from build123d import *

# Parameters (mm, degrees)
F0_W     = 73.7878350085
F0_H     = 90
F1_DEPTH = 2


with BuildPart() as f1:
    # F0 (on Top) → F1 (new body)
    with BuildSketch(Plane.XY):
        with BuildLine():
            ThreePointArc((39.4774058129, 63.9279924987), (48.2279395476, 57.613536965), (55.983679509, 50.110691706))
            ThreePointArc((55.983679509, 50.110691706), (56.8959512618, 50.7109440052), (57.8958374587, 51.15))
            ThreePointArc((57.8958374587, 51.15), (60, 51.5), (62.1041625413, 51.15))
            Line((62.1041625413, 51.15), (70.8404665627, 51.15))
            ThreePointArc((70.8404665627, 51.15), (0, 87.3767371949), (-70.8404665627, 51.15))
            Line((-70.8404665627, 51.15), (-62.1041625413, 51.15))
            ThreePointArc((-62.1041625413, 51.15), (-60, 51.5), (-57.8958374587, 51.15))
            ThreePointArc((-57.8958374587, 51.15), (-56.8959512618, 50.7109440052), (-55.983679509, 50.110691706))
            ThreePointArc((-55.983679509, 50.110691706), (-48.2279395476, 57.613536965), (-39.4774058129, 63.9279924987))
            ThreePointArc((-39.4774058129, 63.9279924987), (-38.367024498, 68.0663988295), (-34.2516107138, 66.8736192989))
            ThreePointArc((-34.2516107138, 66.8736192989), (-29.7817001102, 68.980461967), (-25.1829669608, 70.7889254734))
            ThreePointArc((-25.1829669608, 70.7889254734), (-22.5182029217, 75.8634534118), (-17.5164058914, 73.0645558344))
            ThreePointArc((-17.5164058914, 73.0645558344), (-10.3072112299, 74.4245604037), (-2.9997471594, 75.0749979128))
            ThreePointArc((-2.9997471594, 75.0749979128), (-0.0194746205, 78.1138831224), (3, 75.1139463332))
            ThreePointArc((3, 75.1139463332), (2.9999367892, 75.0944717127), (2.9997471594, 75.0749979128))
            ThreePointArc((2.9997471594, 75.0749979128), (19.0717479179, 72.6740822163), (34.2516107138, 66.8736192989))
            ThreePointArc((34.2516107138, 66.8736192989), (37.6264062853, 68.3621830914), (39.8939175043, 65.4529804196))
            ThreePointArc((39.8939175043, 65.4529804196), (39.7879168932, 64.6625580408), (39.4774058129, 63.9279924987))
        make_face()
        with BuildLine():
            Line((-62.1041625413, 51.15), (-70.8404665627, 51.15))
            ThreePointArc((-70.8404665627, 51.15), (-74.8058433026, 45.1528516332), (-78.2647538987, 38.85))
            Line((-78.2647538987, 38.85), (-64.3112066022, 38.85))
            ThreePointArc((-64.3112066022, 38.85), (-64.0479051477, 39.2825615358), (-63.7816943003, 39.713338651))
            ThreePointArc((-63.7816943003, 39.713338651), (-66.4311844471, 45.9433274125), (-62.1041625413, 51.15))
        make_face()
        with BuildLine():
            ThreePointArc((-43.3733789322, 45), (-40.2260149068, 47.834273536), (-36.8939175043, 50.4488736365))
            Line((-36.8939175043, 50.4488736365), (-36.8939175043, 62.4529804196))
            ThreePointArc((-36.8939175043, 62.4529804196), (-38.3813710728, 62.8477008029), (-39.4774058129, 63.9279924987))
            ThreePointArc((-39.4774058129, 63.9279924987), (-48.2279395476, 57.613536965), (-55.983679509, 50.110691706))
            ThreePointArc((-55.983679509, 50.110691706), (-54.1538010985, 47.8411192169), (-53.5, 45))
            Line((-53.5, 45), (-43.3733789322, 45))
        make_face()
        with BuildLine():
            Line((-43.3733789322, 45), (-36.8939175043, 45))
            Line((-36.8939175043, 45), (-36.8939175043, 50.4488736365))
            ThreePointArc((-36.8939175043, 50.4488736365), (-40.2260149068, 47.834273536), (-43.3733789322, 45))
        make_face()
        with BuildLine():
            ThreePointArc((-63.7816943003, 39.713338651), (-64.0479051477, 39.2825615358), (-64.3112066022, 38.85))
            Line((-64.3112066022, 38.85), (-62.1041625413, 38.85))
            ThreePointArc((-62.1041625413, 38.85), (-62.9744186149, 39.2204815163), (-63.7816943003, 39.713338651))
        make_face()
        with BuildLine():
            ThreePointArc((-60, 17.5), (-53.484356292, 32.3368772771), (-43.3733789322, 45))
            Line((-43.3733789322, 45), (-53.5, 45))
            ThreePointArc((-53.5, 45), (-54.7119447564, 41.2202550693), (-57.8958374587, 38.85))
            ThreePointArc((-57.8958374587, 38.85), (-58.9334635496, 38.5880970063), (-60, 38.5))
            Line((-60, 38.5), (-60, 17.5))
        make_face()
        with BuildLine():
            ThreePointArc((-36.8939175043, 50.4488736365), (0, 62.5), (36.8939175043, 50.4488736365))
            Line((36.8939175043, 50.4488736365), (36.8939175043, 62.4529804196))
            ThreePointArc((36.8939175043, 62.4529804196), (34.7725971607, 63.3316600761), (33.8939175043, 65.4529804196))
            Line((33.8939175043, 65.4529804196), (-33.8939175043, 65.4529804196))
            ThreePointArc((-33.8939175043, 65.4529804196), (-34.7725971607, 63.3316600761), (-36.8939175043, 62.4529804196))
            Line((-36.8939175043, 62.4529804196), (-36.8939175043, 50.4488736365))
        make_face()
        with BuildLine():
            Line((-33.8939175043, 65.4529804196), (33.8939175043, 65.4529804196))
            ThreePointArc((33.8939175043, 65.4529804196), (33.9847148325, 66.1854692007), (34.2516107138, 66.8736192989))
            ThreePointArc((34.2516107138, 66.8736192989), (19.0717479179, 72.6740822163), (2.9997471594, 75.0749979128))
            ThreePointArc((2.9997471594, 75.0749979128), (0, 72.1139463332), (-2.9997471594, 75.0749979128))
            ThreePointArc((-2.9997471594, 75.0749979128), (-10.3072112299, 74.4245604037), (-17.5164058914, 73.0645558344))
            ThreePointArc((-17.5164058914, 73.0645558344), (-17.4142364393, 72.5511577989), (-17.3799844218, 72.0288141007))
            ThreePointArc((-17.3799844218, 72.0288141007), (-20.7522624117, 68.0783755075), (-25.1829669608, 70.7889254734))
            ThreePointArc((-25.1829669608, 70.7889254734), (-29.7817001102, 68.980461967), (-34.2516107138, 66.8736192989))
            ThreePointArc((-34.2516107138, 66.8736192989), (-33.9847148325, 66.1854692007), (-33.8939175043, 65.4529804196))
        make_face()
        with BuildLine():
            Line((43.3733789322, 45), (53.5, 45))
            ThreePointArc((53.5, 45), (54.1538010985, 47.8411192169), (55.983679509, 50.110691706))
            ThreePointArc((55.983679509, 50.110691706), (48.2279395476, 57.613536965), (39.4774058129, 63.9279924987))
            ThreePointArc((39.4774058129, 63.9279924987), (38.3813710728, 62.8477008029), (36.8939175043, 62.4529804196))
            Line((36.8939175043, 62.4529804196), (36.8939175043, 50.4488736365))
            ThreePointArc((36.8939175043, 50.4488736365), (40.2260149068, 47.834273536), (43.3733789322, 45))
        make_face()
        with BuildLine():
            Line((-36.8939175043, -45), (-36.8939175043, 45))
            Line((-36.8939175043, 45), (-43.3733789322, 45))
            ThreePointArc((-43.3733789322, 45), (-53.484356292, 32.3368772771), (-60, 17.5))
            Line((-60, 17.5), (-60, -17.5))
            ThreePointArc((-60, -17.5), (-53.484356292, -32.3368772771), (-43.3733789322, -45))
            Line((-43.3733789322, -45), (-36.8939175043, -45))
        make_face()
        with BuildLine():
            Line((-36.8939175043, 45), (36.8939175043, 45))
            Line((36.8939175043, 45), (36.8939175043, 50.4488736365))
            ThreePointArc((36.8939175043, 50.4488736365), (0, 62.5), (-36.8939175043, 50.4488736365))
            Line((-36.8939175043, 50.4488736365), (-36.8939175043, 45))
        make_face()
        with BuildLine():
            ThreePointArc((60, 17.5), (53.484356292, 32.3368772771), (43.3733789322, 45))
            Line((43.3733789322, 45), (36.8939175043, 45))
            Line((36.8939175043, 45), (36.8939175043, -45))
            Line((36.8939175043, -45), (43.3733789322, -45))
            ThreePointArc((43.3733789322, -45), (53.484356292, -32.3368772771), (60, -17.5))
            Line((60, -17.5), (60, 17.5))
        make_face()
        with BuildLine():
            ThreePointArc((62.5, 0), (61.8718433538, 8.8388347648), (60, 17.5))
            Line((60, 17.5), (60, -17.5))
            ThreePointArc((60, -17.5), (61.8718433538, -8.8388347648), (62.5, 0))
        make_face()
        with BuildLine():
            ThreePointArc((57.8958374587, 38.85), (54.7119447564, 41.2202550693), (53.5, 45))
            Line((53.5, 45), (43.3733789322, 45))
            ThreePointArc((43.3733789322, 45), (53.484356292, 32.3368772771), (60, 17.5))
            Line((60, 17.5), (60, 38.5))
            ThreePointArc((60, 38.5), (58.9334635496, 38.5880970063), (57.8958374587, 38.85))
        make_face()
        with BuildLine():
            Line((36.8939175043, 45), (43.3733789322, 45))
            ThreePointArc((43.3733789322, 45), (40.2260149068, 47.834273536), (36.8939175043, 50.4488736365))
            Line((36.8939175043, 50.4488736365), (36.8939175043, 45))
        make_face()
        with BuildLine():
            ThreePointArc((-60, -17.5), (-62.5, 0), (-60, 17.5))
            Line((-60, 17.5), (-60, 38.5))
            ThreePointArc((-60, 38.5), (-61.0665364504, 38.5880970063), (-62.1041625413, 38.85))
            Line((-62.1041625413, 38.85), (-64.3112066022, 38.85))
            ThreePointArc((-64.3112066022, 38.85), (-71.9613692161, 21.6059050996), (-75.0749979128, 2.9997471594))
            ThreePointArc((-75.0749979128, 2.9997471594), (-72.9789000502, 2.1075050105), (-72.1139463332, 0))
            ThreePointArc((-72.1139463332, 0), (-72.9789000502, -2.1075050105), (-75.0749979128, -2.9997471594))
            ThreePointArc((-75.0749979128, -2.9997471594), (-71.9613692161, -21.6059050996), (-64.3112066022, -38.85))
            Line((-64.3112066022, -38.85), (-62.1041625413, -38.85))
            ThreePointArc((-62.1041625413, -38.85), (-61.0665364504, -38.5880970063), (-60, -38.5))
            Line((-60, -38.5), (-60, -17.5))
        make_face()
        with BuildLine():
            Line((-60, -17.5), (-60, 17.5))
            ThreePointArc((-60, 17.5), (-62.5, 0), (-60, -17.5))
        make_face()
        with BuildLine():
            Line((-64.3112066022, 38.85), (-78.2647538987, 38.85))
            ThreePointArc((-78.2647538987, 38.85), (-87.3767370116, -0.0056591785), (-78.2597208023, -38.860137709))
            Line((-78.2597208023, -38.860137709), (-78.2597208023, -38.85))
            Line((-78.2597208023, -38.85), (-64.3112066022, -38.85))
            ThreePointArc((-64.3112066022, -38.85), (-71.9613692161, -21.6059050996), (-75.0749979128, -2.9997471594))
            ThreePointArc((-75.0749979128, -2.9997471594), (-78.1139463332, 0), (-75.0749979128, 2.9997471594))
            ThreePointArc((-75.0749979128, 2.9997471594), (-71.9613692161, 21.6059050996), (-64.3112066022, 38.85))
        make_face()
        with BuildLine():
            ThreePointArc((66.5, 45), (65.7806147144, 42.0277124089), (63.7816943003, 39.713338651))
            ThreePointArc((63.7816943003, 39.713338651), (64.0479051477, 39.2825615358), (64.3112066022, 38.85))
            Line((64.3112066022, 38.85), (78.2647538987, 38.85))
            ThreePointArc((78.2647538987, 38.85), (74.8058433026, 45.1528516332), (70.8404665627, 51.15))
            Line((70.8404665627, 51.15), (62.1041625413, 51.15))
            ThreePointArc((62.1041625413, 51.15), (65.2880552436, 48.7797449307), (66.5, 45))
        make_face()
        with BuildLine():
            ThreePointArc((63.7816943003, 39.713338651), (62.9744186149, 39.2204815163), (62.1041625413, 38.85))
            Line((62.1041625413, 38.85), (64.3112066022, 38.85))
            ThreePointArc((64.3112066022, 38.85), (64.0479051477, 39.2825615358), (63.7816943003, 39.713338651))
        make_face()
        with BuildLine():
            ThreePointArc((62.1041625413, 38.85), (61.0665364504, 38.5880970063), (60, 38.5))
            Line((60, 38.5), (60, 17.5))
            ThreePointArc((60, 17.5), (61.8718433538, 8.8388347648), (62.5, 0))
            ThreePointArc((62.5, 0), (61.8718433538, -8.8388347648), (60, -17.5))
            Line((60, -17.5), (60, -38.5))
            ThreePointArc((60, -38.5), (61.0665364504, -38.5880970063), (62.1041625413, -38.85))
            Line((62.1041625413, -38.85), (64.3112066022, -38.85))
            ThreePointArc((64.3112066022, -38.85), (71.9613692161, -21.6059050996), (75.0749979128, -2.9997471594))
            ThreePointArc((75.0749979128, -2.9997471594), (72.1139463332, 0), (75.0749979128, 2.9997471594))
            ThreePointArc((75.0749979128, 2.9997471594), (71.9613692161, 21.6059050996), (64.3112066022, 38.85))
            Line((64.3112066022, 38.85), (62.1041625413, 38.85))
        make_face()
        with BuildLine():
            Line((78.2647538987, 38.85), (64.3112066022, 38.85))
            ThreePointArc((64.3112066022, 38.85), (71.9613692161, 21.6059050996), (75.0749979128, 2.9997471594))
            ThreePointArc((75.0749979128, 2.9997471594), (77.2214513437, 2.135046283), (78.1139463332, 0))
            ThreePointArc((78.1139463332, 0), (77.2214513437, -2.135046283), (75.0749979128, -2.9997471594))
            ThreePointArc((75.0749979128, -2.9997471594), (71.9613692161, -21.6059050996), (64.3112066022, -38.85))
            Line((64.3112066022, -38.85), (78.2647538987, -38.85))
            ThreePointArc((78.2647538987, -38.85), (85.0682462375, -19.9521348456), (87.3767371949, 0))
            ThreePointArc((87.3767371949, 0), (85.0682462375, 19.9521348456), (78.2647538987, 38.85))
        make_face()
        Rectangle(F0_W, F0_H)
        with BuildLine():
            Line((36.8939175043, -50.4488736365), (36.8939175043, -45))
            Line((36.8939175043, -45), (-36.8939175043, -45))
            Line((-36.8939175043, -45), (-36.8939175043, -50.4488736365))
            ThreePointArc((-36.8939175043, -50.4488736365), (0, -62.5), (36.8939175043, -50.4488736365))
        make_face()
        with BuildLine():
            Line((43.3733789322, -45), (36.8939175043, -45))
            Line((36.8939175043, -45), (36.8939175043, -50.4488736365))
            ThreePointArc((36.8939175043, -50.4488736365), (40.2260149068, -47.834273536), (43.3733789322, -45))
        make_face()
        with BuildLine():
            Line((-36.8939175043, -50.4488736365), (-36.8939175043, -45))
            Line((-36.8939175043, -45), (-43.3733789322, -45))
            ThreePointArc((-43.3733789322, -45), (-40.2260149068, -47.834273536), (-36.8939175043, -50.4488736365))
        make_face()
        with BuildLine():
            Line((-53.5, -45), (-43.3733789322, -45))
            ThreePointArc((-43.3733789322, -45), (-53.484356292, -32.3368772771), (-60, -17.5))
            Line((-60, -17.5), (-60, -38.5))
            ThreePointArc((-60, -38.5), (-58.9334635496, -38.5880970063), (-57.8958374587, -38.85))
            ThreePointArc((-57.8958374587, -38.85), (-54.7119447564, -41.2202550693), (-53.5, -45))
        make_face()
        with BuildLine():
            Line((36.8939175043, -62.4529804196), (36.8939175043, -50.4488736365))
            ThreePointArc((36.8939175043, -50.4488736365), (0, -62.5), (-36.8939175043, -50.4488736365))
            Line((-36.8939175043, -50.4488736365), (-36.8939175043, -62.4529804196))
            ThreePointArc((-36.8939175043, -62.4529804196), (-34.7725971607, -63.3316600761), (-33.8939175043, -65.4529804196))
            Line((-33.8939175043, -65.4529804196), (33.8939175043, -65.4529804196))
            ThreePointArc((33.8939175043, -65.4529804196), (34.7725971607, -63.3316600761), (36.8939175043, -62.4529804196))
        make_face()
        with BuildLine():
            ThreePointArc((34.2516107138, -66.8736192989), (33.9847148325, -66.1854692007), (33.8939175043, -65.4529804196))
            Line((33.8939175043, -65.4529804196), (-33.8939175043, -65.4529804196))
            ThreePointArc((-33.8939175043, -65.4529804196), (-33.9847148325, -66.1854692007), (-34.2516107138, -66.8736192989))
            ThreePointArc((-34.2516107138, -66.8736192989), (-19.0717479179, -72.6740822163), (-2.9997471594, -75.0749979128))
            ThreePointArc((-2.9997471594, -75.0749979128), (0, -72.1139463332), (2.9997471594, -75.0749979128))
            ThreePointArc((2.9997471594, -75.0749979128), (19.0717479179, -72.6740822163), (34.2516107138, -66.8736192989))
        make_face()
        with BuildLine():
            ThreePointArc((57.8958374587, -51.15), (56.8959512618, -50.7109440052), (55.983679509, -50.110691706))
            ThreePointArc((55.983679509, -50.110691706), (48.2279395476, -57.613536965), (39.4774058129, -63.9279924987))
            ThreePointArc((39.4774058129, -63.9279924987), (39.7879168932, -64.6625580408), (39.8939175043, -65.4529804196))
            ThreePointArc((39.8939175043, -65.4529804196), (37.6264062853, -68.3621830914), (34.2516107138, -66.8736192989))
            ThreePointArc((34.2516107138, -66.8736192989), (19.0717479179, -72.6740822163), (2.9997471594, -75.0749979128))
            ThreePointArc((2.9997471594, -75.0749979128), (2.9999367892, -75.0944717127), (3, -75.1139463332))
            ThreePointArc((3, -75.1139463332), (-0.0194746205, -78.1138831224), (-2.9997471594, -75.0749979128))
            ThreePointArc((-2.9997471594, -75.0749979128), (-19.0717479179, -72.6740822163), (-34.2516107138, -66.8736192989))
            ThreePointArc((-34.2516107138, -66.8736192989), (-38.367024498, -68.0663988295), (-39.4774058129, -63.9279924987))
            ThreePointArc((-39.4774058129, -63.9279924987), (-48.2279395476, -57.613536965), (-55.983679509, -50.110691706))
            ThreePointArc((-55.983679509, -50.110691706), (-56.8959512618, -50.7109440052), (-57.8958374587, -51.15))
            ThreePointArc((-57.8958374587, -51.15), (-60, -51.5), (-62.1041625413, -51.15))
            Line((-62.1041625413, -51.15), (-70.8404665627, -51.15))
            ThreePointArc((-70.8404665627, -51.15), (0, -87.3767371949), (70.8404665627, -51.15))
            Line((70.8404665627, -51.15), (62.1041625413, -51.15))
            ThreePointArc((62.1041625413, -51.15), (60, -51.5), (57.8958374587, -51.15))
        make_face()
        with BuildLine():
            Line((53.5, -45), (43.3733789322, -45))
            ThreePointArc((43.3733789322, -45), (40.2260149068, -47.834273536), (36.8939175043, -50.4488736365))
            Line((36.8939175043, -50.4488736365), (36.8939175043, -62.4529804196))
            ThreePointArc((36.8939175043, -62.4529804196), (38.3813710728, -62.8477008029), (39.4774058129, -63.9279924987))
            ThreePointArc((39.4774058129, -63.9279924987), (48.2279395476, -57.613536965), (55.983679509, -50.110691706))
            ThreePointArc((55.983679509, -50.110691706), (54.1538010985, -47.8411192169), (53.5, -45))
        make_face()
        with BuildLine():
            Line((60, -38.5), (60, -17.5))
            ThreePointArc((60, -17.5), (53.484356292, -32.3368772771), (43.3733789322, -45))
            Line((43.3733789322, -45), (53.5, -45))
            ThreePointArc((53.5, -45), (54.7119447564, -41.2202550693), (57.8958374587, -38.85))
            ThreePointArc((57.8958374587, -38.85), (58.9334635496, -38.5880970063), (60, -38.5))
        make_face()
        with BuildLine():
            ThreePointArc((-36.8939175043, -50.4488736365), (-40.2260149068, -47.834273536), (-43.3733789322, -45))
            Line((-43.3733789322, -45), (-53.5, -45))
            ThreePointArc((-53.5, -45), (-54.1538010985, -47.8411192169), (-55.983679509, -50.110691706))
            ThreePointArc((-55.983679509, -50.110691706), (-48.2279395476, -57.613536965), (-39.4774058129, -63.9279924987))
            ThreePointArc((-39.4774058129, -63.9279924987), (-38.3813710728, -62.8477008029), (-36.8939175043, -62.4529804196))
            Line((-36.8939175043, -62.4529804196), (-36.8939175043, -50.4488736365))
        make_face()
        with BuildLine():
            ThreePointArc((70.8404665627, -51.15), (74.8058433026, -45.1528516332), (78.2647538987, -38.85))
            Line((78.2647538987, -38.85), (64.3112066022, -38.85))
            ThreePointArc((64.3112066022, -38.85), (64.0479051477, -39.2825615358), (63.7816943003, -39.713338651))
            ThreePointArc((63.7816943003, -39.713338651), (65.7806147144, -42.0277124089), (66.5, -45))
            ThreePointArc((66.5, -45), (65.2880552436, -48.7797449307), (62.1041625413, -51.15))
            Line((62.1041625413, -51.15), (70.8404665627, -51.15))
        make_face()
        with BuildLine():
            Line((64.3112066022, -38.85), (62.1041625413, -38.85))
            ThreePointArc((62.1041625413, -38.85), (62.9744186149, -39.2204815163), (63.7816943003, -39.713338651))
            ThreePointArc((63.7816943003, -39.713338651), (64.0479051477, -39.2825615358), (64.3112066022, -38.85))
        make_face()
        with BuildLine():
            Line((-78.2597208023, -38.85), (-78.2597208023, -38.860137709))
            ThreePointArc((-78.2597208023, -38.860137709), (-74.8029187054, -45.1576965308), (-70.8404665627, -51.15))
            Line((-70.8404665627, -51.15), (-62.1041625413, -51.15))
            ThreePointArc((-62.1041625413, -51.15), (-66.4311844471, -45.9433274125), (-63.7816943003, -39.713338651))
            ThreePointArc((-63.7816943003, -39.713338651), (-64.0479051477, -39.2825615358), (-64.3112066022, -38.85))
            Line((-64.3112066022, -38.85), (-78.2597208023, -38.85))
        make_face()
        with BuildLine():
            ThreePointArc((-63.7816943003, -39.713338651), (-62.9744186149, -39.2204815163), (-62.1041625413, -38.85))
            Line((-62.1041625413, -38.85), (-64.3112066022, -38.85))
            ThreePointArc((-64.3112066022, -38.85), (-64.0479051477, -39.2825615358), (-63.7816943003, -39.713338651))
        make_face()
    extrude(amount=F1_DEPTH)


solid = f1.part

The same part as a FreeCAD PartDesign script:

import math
import FreeCAD as App
import Part
import Sketcher

V = App.Vector

doc = App.newDocument("Part")
body = doc.addObject("PartDesign::Body", "Body")

sketch1 = body.newObject("Sketcher::SketchObject", "Sketch")
sketch1.AttachmentSupport = (doc.getObject("XY_Plane"), [""])
sketch1.MapMode = "FlatFace"
sketch1.addGeometry([
    Part.ArcOfCircle(Part.Circle(V(0, 0, 0), V(0, 0, 1), 87.376737), math.radians(-144.169023), math.radians(-35.830977)),
    Part.ArcOfCircle(Part.Circle(V(0, 0, 0), V(0, 0, 1), 87.376737), math.radians(-35.830977), math.radians(-26.399435)),
    Part.ArcOfCircle(Part.Circle(V(0, 0, 0), V(0, 0, 1), 87.376737), math.radians(-26.399435), math.radians(0)),
    Part.ArcOfCircle(Part.Circle(V(0, 0, 0), V(0, 0, 1), 87.376737), math.radians(0), math.radians(26.399435)),
    Part.ArcOfCircle(Part.Circle(V(0, 0, 0), V(0, 0, 1), 87.376737), math.radians(26.399435), math.radians(35.830977)),
    Part.ArcOfCircle(Part.Circle(V(0, 0, 0), V(0, 0, 1), 87.376737), math.radians(35.830977), math.radians(144.169023)),
    Part.ArcOfCircle(Part.Circle(V(0, 0, 0), V(0, 0, 1), 87.376737), math.radians(144.169023), math.radians(153.600565)),
    Part.ArcOfCircle(Part.Circle(V(0, 0, 0), V(0, 0, 1), 87.376737), math.radians(153.600565), math.radians(206.406857)),
    Part.ArcOfCircle(Part.Circle(V(0, 0, 0), V(0, 0, 1), 87.376737), math.radians(-153.593143), math.radians(-144.169023)),
    Part.ArcOfCircle(Part.Circle(V(-36.893918, -65.45298, 0), V(0, 0, 1), 3), math.radians(0), math.radians(90)),
    Part.ArcOfCircle(Part.Circle(V(-36.893918, -65.45298, 0), V(0, 0, 1), 3), math.radians(-28.264741), math.radians(0)),
    Part.ArcOfCircle(Part.Circle(V(-36.893918, -65.45298, 0), V(0, 0, 1), 3), math.radians(149.44739), math.radians(331.735259)),
    Part.ArcOfCircle(Part.Circle(V(-36.893918, -65.45298, 0), V(0, 0, 1), 3), math.radians(90), math.radians(149.44739)),
    Part.ArcOfCircle(Part.Circle(V(-60, -45, 0), V(0, 0, 1), 6.5), math.radians(-71.112118), math.radians(-51.837388)),
    Part.ArcOfCircle(Part.Circle(V(-60, -45, 0), V(0, 0, 1), 6.5), math.radians(-108.887882), math.radians(-71.112118)),
    Part.ArcOfCircle(Part.Circle(V(-60, -45, 0), V(0, 0, 1), 6.5), math.radians(125.577183), math.radians(251.112118)),
    Part.ArcOfCircle(Part.Circle(V(-60, -45, 0), V(0, 0, 1), 6.5), math.radians(108.887882), math.radians(125.577183)),
    Part.ArcOfCircle(Part.Circle(V(-60, -45, 0), V(0, 0, 1), 6.5), math.radians(90), math.radians(108.887882)),
    Part.ArcOfCircle(Part.Circle(V(-60, -45, 0), V(0, 0, 1), 6.5), math.radians(71.112118), math.radians(90)),
    Part.ArcOfCircle(Part.Circle(V(-60, -45, 0), V(0, 0, 1), 6.5), math.radians(0), math.radians(71.112118)),
    Part.ArcOfCircle(Part.Circle(V(-60, -45, 0), V(0, 0, 1), 6.5), math.radians(-51.837388), math.radians(0)),
    Part.ArcOfCircle(Part.Circle(V(60, -45, 0), V(0, 0, 1), 6.5), math.radians(-108.887882), math.radians(-71.112118)),
    Part.ArcOfCircle(Part.Circle(V(60, -45, 0), V(0, 0, 1), 6.5), math.radians(-128.162612), math.radians(-108.887882)),
    Part.ArcOfCircle(Part.Circle(V(60, -45, 0), V(0, 0, 1), 6.5), math.radians(180), math.radians(231.837388)),
    Part.ArcOfCircle(Part.Circle(V(60, -45, 0), V(0, 0, 1), 6.5), math.radians(108.887882), math.radians(180)),
    Part.ArcOfCircle(Part.Circle(V(60, -45, 0), V(0, 0, 1), 6.5), math.radians(90), math.radians(108.887882)),
    Part.ArcOfCircle(Part.Circle(V(60, -45, 0), V(0, 0, 1), 6.5), math.radians(71.112118), math.radians(90)),
    Part.ArcOfCircle(Part.Circle(V(60, -45, 0), V(0, 0, 1), 6.5), math.radians(54.422817), math.radians(71.112118)),
    Part.ArcOfCircle(Part.Circle(V(60, -45, 0), V(0, 0, 1), 6.5), math.radians(0), math.radians(54.422817)),
    Part.ArcOfCircle(Part.Circle(V(60, -45, 0), V(0, 0, 1), 6.5), math.radians(-71.112118), math.radians(0)),
    Part.ArcOfCircle(Part.Circle(V(36.893918, -65.45298, 0), V(0, 0, 1), 3), math.radians(0), math.radians(30.55261)),
    Part.ArcOfCircle(Part.Circle(V(36.893918, -65.45298, 0), V(0, 0, 1), 3), math.radians(-151.735259), math.radians(0)),
    Part.ArcOfCircle(Part.Circle(V(36.893918, -65.45298, 0), V(0, 0, 1), 3), math.radians(-180), math.radians(-151.735259)),
    Part.ArcOfCircle(Part.Circle(V(36.893918, -65.45298, 0), V(0, 0, 1), 3), math.radians(90), math.radians(180)),
    Part.ArcOfCircle(Part.Circle(V(36.893918, -65.45298, 0), V(0, 0, 1), 3), math.radians(30.55261), math.radians(90)),
    Part.ArcOfCircle(Part.Circle(V(0, -75.113946, 0), V(0, 0, 1), 3), math.radians(0.743881), math.radians(179.256119)),
    Part.ArcOfCircle(Part.Circle(V(0.000001, -75.113946, 0), V(0, 0, 1), 2.999999), math.radians(0), math.radians(0.743881)),
    Part.ArcOfCircle(Part.Circle(V(0, -75.113946, 0), V(0, 0, 1), 3), math.radians(179.256119), math.radians(360)),
    Part.ArcOfCircle(Part.Circle(V(75.113946, 0, 0), V(0, 0, 1), 3), math.radians(90.743881), math.radians(269.256119)),
    Part.ArcOfCircle(Part.Circle(V(75.113946, 0, 0), V(0, 0, 1), 3), math.radians(0), math.radians(90.743881)),
    Part.ArcOfCircle(Part.Circle(V(75.113946, 0, 0), V(0, 0, 1), 3), math.radians(-90.743881), math.radians(0)),
    Part.ArcOfCircle(Part.Circle(V(60, 45, 0), V(0, 0, 1), 6.5), math.radians(-108.887882), math.radians(-90)),
    Part.ArcOfCircle(Part.Circle(V(60, 45, 0), V(0, 0, 1), 6.5), math.radians(180), math.radians(251.112118)),
    Part.ArcOfCircle(Part.Circle(V(60, 45, 0), V(0, 0, 1), 6.5), math.radians(128.162612), math.radians(180)),
    Part.ArcOfCircle(Part.Circle(V(60, 45, 0), V(0, 0, 1), 6.5), math.radians(108.887882), math.radians(128.162612)),
    Part.ArcOfCircle(Part.Circle(V(60, 45, 0), V(0, 0, 1), 6.5), math.radians(71.112118), math.radians(108.887882)),
    Part.ArcOfCircle(Part.Circle(V(60, 45, 0), V(0, 0, 1), 6.5), math.radians(0), math.radians(71.112118)),
    Part.ArcOfCircle(Part.Circle(V(60, 45, 0), V(0, 0, 1), 6.5), math.radians(-54.422817), math.radians(0)),
    Part.ArcOfCircle(Part.Circle(V(60, 45, 0), V(0, 0, 1), 6.5), math.radians(-71.112118), math.radians(-54.422817)),
    Part.ArcOfCircle(Part.Circle(V(60, 45, 0), V(0, 0, 1), 6.5), math.radians(-90), math.radians(-71.112118)),
    Part.ArcOfCircle(Part.Circle(V(-75.113946, 0, 0), V(0, 0, 1), 3), math.radians(0), math.radians(89.256119)),
    Part.ArcOfCircle(Part.Circle(V(-75.113946, 0, 0), V(0, 0, 1), 3), math.radians(-89.256119), math.radians(0)),
    Part.ArcOfCircle(Part.Circle(V(-75.113946, 0, 0), V(0, 0, 1), 3), math.radians(89.256119), math.radians(270.743881)),
    Part.ArcOfCircle(Part.Circle(V(-60, 45, 0), V(0, 0, 1), 6.5), math.radians(-125.577183), math.radians(-108.887882)),
    Part.ArcOfCircle(Part.Circle(V(-60, 45, 0), V(0, 0, 1), 6.5), math.radians(108.887882), math.radians(234.422817)),
    Part.ArcOfCircle(Part.Circle(V(-60, 45, 0), V(0, 0, 1), 6.5), math.radians(71.112118), math.radians(108.887882)),
    Part.ArcOfCircle(Part.Circle(V(-60, 45, 0), V(0, 0, 1), 6.5), math.radians(51.837388), math.radians(71.112118)),
    Part.ArcOfCircle(Part.Circle(V(-60, 45, 0), V(0, 0, 1), 6.5), math.radians(0), math.radians(51.837388)),
    Part.ArcOfCircle(Part.Circle(V(-60, 45, 0), V(0, 0, 1), 6.5), math.radians(-71.112118), math.radians(0)),
    Part.ArcOfCircle(Part.Circle(V(-60, 45, 0), V(0, 0, 1), 6.5), math.radians(-90), math.radians(-71.112118)),
    Part.ArcOfCircle(Part.Circle(V(-60, 45, 0), V(0, 0, 1), 6.5), math.radians(-108.887882), math.radians(-90)),
    Part.ArcOfCircle(Part.Circle(V(-36.893918, 65.45298, 0), V(0, 0, 1), 3), math.radians(-90), math.radians(0)),
    Part.ArcOfCircle(Part.Circle(V(-36.893918, 65.45298, 0), V(0, 0, 1), 3), math.radians(-149.44739), math.radians(-90)),
    Part.ArcOfCircle(Part.Circle(V(-36.893918, 65.45298, 0), V(0, 0, 1), 3), math.radians(28.264741), math.radians(210.55261)),
    Part.ArcOfCircle(Part.Circle(V(-36.893918, 65.45298, 0), V(0, 0, 1), 3), math.radians(0), math.radians(28.264741)),
    Part.ArcOfCircle(Part.Circle(V(-21.379984, 72.028814, 0), V(0, 0, 1), 4), math.radians(15.006904), math.radians(198.057553)),
    Part.ArcOfCircle(Part.Circle(V(-21.379984, 72.028814, 0), V(0, 0, 1), 4), math.radians(0), math.radians(15.006904)),
    Part.ArcOfCircle(Part.Circle(V(-21.379984, 72.028814, 0), V(0, 0, 1), 4), math.radians(-161.942447), math.radians(0)),
    Part.ArcOfCircle(Part.Circle(V(0, 75.113946, 0), V(0, 0, 1), 3), math.radians(0), math.radians(180.743881)),
    Part.ArcOfCircle(Part.Circle(V(0.000001, 75.113946, 0), V(0, 0, 1), 2.999999), math.radians(-0.743881), math.radians(0)),
    Part.ArcOfCircle(Part.Circle(V(0, 75.113946, 0), V(0, 0, 1), 3), math.radians(-179.256119), math.radians(-0.743881)),
    Part.ArcOfCircle(Part.Circle(V(36.893918, 65.45298, 0), V(0, 0, 1), 3), math.radians(180), math.radians(270)),
    Part.ArcOfCircle(Part.Circle(V(36.893918, 65.45298, 0), V(0, 0, 1), 3), math.radians(151.735259), math.radians(180)),
    Part.ArcOfCircle(Part.Circle(V(36.893918, 65.45298, 0), V(0, 0, 1), 3), math.radians(0), math.radians(151.735259)),
    Part.ArcOfCircle(Part.Circle(V(36.893918, 65.45298, 0), V(0, 0, 1), 3), math.radians(-30.55261), math.radians(0)),
    Part.ArcOfCircle(Part.Circle(V(36.893918, 65.45298, 0), V(0, 0, 1), 3), math.radians(-90), math.radians(-30.55261)),
], False)
sketch1.addConstraint([
    Sketcher.Constraint("Tangent", 0, 2, 1, 1),
    Sketcher.Constraint("Tangent", 1, 2, 2, 1),
    Sketcher.Constraint("Tangent", 2, 2, 3, 1),
    Sketcher.Constraint("Tangent", 3, 2, 4, 1),
    Sketcher.Constraint("Tangent", 4, 2, 5, 1),
    Sketcher.Constraint("Tangent", 5, 2, 6, 1),
    Sketcher.Constraint("Tangent", 6, 2, 7, 1),
    Sketcher.Constraint("Tangent", 7, 2, 8, 1),
    Sketcher.Constraint("Tangent", 8, 2, 0, 1),
    Sketcher.Constraint("Tangent", 9, 1, 10, 2),
    Sketcher.Constraint("Tangent", 10, 1, 11, 2),
    Sketcher.Constraint("Tangent", 11, 1, 12, 2),
    Sketcher.Constraint("Tangent", 12, 1, 9, 2),
    Sketcher.Constraint("Tangent", 13, 1, 14, 2),
    Sketcher.Constraint("Tangent", 14, 1, 15, 2),
    Sketcher.Constraint("Tangent", 15, 1, 16, 2),
    Sketcher.Constraint("Tangent", 16, 1, 17, 2),
    Sketcher.Constraint("Tangent", 17, 1, 18, 2),
    Sketcher.Constraint("Tangent", 18, 1, 19, 2),
    Sketcher.Constraint("Tangent", 19, 1, 20, 2),
    Sketcher.Constraint("Tangent", 20, 1, 13, 2),
    Sketcher.Constraint("Tangent", 21, 1, 22, 2),
    Sketcher.Constraint("Tangent", 22, 1, 23, 2),
    Sketcher.Constraint("Tangent", 23, 1, 24, 2),
    Sketcher.Constraint("Tangent", 24, 1, 25, 2),
    Sketcher.Constraint("Tangent", 25, 1, 26, 2),
    Sketcher.Constraint("Tangent", 26, 1, 27, 2),
    Sketcher.Constraint("Tangent", 27, 1, 28, 2),
    Sketcher.Constraint("Tangent", 28, 1, 29, 2),
    Sketcher.Constraint("Tangent", 29, 1, 21, 2),
    Sketcher.Constraint("Tangent", 30, 1, 31, 2),
    Sketcher.Constraint("Tangent", 31, 1, 32, 2),
    Sketcher.Constraint("Tangent", 32, 1, 33, 2),
    Sketcher.Constraint("Tangent", 33, 1, 34, 2),
    Sketcher.Constraint("Tangent", 34, 1, 30, 2),
    Sketcher.Constraint("Tangent", 35, 1, 36, 2),
    Sketcher.Constraint("Tangent", 36, 1, 37, 2),
    Sketcher.Constraint("Tangent", 37, 1, 35, 2),
    Sketcher.Constraint("Tangent", 38, 1, 39, 2),
    Sketcher.Constraint("Tangent", 39, 1, 40, 2),
    Sketcher.Constraint("Tangent", 40, 1, 38, 2),
    Sketcher.Constraint("Tangent", 41, 1, 42, 2),
    Sketcher.Constraint("Tangent", 42, 1, 43, 2),
    Sketcher.Constraint("Tangent", 43, 1, 44, 2),
    Sketcher.Constraint("Tangent", 44, 1, 45, 2),
    Sketcher.Constraint("Tangent", 45, 1, 46, 2),
    Sketcher.Constraint("Tangent", 46, 1, 47, 2),
    Sketcher.Constraint("Tangent", 47, 1, 48, 2),
    Sketcher.Constraint("Tangent", 48, 1, 49, 2),
    Sketcher.Constraint("Tangent", 49, 1, 41, 2),
    Sketcher.Constraint("Tangent", 50, 1, 51, 2),
    Sketcher.Constraint("Tangent", 51, 1, 52, 2),
    Sketcher.Constraint("Tangent", 52, 1, 50, 2),
    Sketcher.Constraint("Tangent", 53, 1, 54, 2),
    Sketcher.Constraint("Tangent", 54, 1, 55, 2),
    Sketcher.Constraint("Tangent", 55, 1, 56, 2),
    Sketcher.Constraint("Tangent", 56, 1, 57, 2),
    Sketcher.Constraint("Tangent", 57, 1, 58, 2),
    Sketcher.Constraint("Tangent", 58, 1, 59, 2),
    Sketcher.Constraint("Tangent", 59, 1, 60, 2),
    Sketcher.Constraint("Tangent", 60, 1, 53, 2),
    Sketcher.Constraint("Tangent", 61, 1, 62, 2),
    Sketcher.Constraint("Tangent", 62, 1, 63, 2),
    Sketcher.Constraint("Tangent", 63, 1, 64, 2),
    Sketcher.Constraint("Tangent", 64, 1, 61, 2),
    Sketcher.Constraint("Tangent", 65, 1, 66, 2),
    Sketcher.Constraint("Tangent", 66, 1, 67, 2),
    Sketcher.Constraint("Tangent", 67, 1, 65, 2),
    Sketcher.Constraint("Tangent", 68, 1, 69, 2),
    Sketcher.Constraint("Tangent", 69, 1, 70, 2),
    Sketcher.Constraint("Tangent", 70, 1, 68, 2),
    Sketcher.Constraint("Tangent", 71, 1, 72, 2),
    Sketcher.Constraint("Tangent", 72, 1, 73, 2),
    Sketcher.Constraint("Tangent", 73, 1, 74, 2),
    Sketcher.Constraint("Tangent", 74, 1, 75, 2),
    Sketcher.Constraint("Tangent", 75, 1, 71, 2),
    Sketcher.Constraint("Coincident", 0, 3, -1, 1),
    Sketcher.Constraint("Coincident", 2, 3, -1, 1),
    Sketcher.Constraint("Coincident", 4, 3, -1, 1),
    Sketcher.Constraint("Coincident", 6, 3, -1, 1),
    Sketcher.Constraint("Coincident", 15, 3, 13, 3),
    Sketcher.Constraint("Coincident", 17, 3, 13, 3),
    Sketcher.Constraint("Coincident", 23, 3, 21, 3),
    Sketcher.Constraint("Coincident", 25, 3, 21, 3),
    Sketcher.Constraint("Coincident", 27, 3, 21, 3),
    Sketcher.Constraint("Coincident", 32, 3, 30, 3),
    Sketcher.Constraint("Coincident", 43, 3, 41, 3),
    Sketcher.Constraint("Coincident", 45, 3, 41, 3),
    Sketcher.Constraint("Coincident", 47, 3, 41, 3),
    Sketcher.Constraint("Coincident", 55, 3, 53, 3),
    Sketcher.Constraint("Coincident", 57, 3, 53, 3),
    Sketcher.Constraint("Coincident", 73, 3, 71, 3),
    Sketcher.Constraint("Equal", 9, 10),
    Sketcher.Constraint("Equal", 17, 18),
    Sketcher.Constraint("Equal", 20, 21),
    Sketcher.Constraint("Equal", 12, 30),
    Sketcher.Constraint("Equal", 34, 35),
    Sketcher.Constraint("Equal", 37, 38),
    Sketcher.Constraint("Equal", 29, 41),
    Sketcher.Constraint("Equal", 40, 50),
    Sketcher.Constraint("Equal", 49, 53),
    Sketcher.Constraint("Equal", 57, 58),
    Sketcher.Constraint("Equal", 52, 61),
    Sketcher.Constraint("Equal", 61, 62),
    Sketcher.Constraint("Equal", 64, 68),
    Sketcher.Constraint("Equal", 70, 71),
    Sketcher.Constraint("Symmetric", 13, 3, 41, 3, -1, 1),
    Sketcher.Constraint("Symmetric", 38, 3, 50, 3, -1, 1),
    Sketcher.Constraint("Symmetric", 21, 3, 53, 3, -1, 1),
    Sketcher.Constraint("Symmetric", 30, 3, 61, 3, -1, 1),
    Sketcher.Constraint("Symmetric", 35, 3, 68, 3, -1, 1),
    Sketcher.Constraint("Symmetric", 9, 3, 71, 3, -1, 1),
    Sketcher.Constraint("Symmetric", 13, 3, 21, 3, -2),
    Sketcher.Constraint("Symmetric", 9, 3, 30, 3, -2),
    Sketcher.Constraint("Symmetric", 35, 1, 37, 1, -2),
    Sketcher.Constraint("Symmetric", 40, 1, 51, 1, -2),
    Sketcher.Constraint("PointOnObject", 2, 2, -1),
    Sketcher.Constraint("PointOnObject", 39, 1, -1),
    Sketcher.Constraint("PointOnObject", 50, 1, -1),
    Sketcher.Constraint("Horizontal", 4, 2, 5, 2),
    Sketcher.Constraint("Horizontal", 3, 2, 6, 2),
    Sketcher.Constraint("Horizontal", 0, 2, 8, 2),
    Sketcher.Constraint("Horizontal", 34, 3, 9, 1),
    Sketcher.Constraint("Horizontal", 8, 2, 13, 1),
    Sketcher.Constraint("Horizontal", 13, 1, 14, 1),
    Sketcher.Constraint("Horizontal", 1, 2, 16, 1),
    Sketcher.Constraint("Horizontal", 16, 1, 18, 1),
    Sketcher.Constraint("Horizontal", 29, 3, 19, 1),
    Sketcher.Constraint("Horizontal", 14, 1, 21, 1),
    Sketcher.Constraint("Horizontal", 20, 1, 22, 1),
    Sketcher.Constraint("Horizontal", 19, 1, 23, 1),
    Sketcher.Constraint("Horizontal", 18, 1, 24, 1),
    Sketcher.Constraint("Horizontal", 24, 1, 26, 1),
    Sketcher.Constraint("Horizontal", 15, 1, 27, 1),
    Sketcher.Constraint("Horizontal", 23, 1, 28, 1),
    Sketcher.Constraint("Horizontal", 21, 1, 29, 1),
    Sketcher.Constraint("Horizontal", 9, 1, 30, 1),
    Sketcher.Constraint("Horizontal", 10, 1, 31, 1),
    Sketcher.Constraint("Horizontal", 30, 1, 32, 1),
    Sketcher.Constraint("Horizontal", 11, 1, 34, 1),
    Sketcher.Constraint("Horizontal", 37, 3, 36, 1),
    Sketcher.Constraint("Horizontal", 6, 2, 41, 1),
    Sketcher.Constraint("Horizontal", 60, 3, 42, 1),
    Sketcher.Constraint("Horizontal", 5, 2, 44, 1),
    Sketcher.Constraint("Horizontal", 44, 1, 45, 1),
    Sketcher.Constraint("Horizontal", 42, 1, 46, 1),
    Sketcher.Constraint("Horizontal", 41, 1, 48, 1),
    Sketcher.Constraint("Horizontal", 38, 1, 52, 1),
    Sketcher.Constraint("Horizontal", 47, 1, 53, 1),
    Sketcher.Constraint("Horizontal", 45, 1, 54, 1),
    Sketcher.Constraint("Horizontal", 54, 1, 55, 1),
    Sketcher.Constraint("Horizontal", 43, 1, 56, 1),
    Sketcher.Constraint("Horizontal", 46, 1, 57, 1),
    Sketcher.Constraint("Horizontal", 48, 1, 58, 1),
    Sketcher.Constraint("Horizontal", 58, 1, 60, 1),
    Sketcher.Constraint("Horizontal", 75, 3, 64, 1),
    Sketcher.Constraint("Horizontal", 67, 3, 66, 1),
    Sketcher.Constraint("Horizontal", 70, 3, 68, 1),
    Sketcher.Constraint("Horizontal", 69, 1, 70, 1),
    Sketcher.Constraint("Horizontal", 64, 1, 71, 1),
    Sketcher.Constraint("Horizontal", 63, 1, 72, 1),
    Sketcher.Constraint("Horizontal", 71, 1, 73, 1),
    Sketcher.Constraint("Horizontal", 62, 1, 74, 1),
    Sketcher.Constraint("Vertical", 1, 2, 3, 2),
    Sketcher.Constraint("Vertical", 0, 2, 4, 2),
    Sketcher.Constraint("Vertical", 64, 3, 12, 1),
    Sketcher.Constraint("Vertical", 14, 1, 16, 1),
    Sketcher.Constraint("Vertical", 60, 3, 17, 1),
    Sketcher.Constraint("Vertical", 49, 3, 25, 1),
    Sketcher.Constraint("Vertical", 75, 3, 33, 1),
    Sketcher.Constraint("Vertical", 38, 1, 40, 1),
    Sketcher.Constraint("Vertical", 22, 1, 43, 1),
    Sketcher.Constraint("Vertical", 27, 1, 47, 1),
    Sketcher.Constraint("Vertical", 25, 1, 49, 1),
    Sketcher.Constraint("Vertical", 17, 1, 59, 1),
    Sketcher.Constraint("Vertical", 12, 1, 61, 1),
    Sketcher.Constraint("Vertical", 11, 1, 62, 1),
    Sketcher.Constraint("Vertical", 10, 1, 63, 1),
    Sketcher.Constraint("Vertical", 35, 1, 69, 1),
    Sketcher.Constraint("Vertical", 33, 1, 75, 1),
    Sketcher.Constraint("Radius", 9, 3.0),
    Sketcher.Constraint("Radius", 65, 4.0),
    Sketcher.Constraint("Radius", 13, 6.5),
    Sketcher.Constraint("DistanceX", 13, 3, -1, 1, 60.0),
    Sketcher.Constraint("DistanceY", 13, 3, -1, 1, 45.0),
    Sketcher.Constraint("DistanceY", 0, 2, -1, 1, 51.15),
    Sketcher.Constraint("Radius", 0, 87.376737),
    Sketcher.Constraint("DistanceY", 9, 3, -1, 1, 65.45298),
    Sketcher.Constraint("DistanceX", 7, 2, -1, 1, 78.259721),
    Sketcher.Constraint("DistanceX", 10, 1, -1, 1, 34.251611),
    Sketcher.Constraint("DistanceY", 10, 1, -1, 1, 66.873619),
    Sketcher.Constraint("DistanceY", 15, 1, -1, 1, 39.713339),
    Sketcher.Constraint("DistanceX", 20, 1, -1, 1, 55.98368),
    Sketcher.Constraint("DistanceY", 35, 3, -1, 1, 75.113946),
    Sketcher.Constraint("DistanceX", -1, 1, 38, 3, 75.113946),
    Sketcher.Constraint("DistanceX", 65, 3, -1, 1, 21.379984),
    Sketcher.Constraint("DistanceY", -1, 1, 65, 3, 72.028814),
    Sketcher.Constraint("DistanceX", 11, 1, -1, 1, 39.477406),
    Sketcher.Constraint("DistanceX", -1, 1, 35, 1, 2.999747),
    Sketcher.Constraint("DistanceX", -1, 1, 38, 1, 75.074998),
    Sketcher.Constraint("DistanceX", 65, 1, -1, 1, 17.516406),
    Sketcher.Constraint("DistanceX", 67, 1, -1, 1, 25.182967),
])
pad1 = body.newObject("PartDesign::Pad", "Pad")
pad1.Profile = sketch1
pad1.Length = 2

doc.recompute()
